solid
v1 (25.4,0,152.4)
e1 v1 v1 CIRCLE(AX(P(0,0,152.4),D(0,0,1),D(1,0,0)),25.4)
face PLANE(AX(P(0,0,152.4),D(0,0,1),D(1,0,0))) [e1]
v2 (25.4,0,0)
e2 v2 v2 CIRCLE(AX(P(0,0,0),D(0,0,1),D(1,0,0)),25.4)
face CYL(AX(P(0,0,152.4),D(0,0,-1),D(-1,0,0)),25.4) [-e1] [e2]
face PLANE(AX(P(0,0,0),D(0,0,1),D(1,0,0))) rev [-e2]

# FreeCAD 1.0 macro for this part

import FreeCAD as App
import Part
import Sketcher
Q = App.Units.Quantity

doc = App.newDocument("Part")
body = doc.addObject("PartDesign::Body", "Body")

sketch1 = body.newObject("Sketcher::SketchObject", "Sketch")
sketch1.AttachmentSupport = (doc.getObject("XY_Plane"), [""])
sketch1.MapMode = "FlatFace"
sketch1.addGeometry(Part.Circle(App.Vector(0, 0, 0), App.Vector(0, 0, 1), 25.4), False)
sketch1.addConstraint([
    Sketcher.Constraint("Coincident", 0, 3, -1, 1),
    Sketcher.Constraint("Diameter", 0, Q("2 in")),
])
pad1 = body.newObject("PartDesign::Pad", "Pad")
pad1.Profile = sketch1
pad1.Length = Q("6 in")

doc.recompute()
